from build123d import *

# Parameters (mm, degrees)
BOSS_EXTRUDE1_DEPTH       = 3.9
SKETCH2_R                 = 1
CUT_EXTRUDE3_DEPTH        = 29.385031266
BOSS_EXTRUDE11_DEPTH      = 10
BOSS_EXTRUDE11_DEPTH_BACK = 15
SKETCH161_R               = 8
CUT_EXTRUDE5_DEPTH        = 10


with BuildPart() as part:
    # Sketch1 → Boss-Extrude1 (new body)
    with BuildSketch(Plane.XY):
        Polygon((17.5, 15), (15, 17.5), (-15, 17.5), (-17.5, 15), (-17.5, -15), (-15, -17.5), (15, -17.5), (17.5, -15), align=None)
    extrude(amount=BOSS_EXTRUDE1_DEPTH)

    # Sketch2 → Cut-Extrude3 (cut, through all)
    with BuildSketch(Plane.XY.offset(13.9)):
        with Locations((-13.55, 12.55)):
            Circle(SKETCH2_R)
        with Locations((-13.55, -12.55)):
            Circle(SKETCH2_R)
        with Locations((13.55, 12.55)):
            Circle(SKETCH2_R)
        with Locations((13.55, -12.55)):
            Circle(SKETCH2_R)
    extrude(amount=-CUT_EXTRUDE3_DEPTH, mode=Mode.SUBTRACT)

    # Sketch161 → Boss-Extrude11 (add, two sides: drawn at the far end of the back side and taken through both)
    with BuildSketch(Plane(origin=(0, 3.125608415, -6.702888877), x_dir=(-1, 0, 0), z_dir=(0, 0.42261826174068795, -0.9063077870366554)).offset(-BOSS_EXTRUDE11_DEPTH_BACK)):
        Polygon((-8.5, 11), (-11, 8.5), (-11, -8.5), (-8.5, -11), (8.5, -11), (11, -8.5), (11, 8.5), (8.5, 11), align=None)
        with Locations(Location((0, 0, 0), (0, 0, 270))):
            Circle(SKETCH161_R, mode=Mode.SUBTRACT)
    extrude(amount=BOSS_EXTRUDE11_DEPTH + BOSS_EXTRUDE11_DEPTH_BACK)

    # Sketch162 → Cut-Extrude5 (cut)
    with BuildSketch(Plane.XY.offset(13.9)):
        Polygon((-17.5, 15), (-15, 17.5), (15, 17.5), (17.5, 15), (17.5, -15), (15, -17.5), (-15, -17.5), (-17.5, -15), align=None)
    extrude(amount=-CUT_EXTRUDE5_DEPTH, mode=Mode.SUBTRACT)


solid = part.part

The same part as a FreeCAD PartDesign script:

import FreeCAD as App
import Part
import Sketcher
from FreeCAD import Vector


def add_polygon(sketch, points):
    """Adds a closed chain of lines whose ends are joined by coincident constraints."""
    first, n = sketch.GeometryCount, len(points)
    for a, b in zip(points, points[1:] + points[:1]):
        sketch.addGeometry(Part.LineSegment(App.Vector(*a, 0), App.Vector(*b, 0)), False)
    for i in range(n):
        sketch.addConstraint(Sketcher.Constraint("Coincident", first + i, 2, first + (i + 1) % n, 1))

doc = App.newDocument("Part")
body = doc.addObject("PartDesign::Body", "Body")

# Sketch on XY plane
sketch1 = body.newObject("Sketcher::SketchObject", "Sketch")
sketch1.AttachmentSupport = (doc.getObject("XY_Plane"), [""])
sketch1.MapMode = "FlatFace"
add_polygon(sketch1, [(17.5, 15), (15, 17.5), (-15, 17.5), (-17.5, 15), (-17.5, -15), (-15, -17.5), (15, -17.5), (17.5, -15)])  # lines 0-7
sketch1.addConstraint([
    Sketcher.Constraint("Horizontal", 1),
    Sketcher.Constraint("Vertical", 3),
    Sketcher.Constraint("Horizontal", 5),
    Sketcher.Constraint("Vertical", 7),
    Sketcher.Constraint("Symmetric", 0, 2, 4, 2, -1, 1),
    Sketcher.Constraint("Symmetric", 2, 2, 6, 2, -1, 1),
    Sketcher.Constraint("Perpendicular", 0, 2),
    Sketcher.Constraint("Perpendicular", 2, 4),
    Sketcher.Constraint("Perpendicular", 4, 6),
    Sketcher.Constraint("Horizontal", 3, 2, 6, 2),
    Sketcher.Constraint("Vertical", 1, 2, 4, 2),
    Sketcher.Constraint("Equal", 5, 3),
    Sketcher.Constraint("DistanceX", 1, 2, 1, 1, 30.0),
    Sketcher.Constraint("DistanceY", 4, 2, 1, 2, 35.0),
])
pad1 = body.newObject("PartDesign::Pad", "Pad")
pad1.Profile = sketch1
pad1.Length = 3.9

# Sketch on XY plane
sketch2 = body.newObject("Sketcher::SketchObject", "Sketch001")
sketch2.AttachmentSupport = (doc.getObject("XY_Plane"), [""])
sketch2.MapMode = "FlatFace"
sketch2.AttachmentOffset = App.Placement(Vector(0, 0, 13.9), App.Rotation())
sketch2.addGeometry([
    Part.Circle(Vector(-13.55, 12.55, 0), Vector(0, 0, 1), 1),
    Part.Circle(Vector(-13.55, -12.55, 0), Vector(0, 0, 1), 1),
    Part.Circle(Vector(13.55, 12.55, 0), Vector(0, 0, 1), 1),
    Part.Circle(Vector(13.55, -12.55, 0), Vector(0, 0, 1), 1),
], False)
sketch2.addConstraint([
    Sketcher.Constraint("Equal", 0, 1),
    Sketcher.Constraint("Equal", 1, 2),
    Sketcher.Constraint("Equal", 2, 3),
    Sketcher.Constraint("Symmetric", 1, 3, 2, 3, -1, 1),
    Sketcher.Constraint("Symmetric", 0, 3, 3, 3, -1, 1),
    Sketcher.Constraint("Symmetric", 0, 3, 2, 3, -2),
    Sketcher.Constraint("Diameter", 0, 2.0),
    Sketcher.Constraint("DistanceY", 1, 3, 0, 3, 25.1),
    Sketcher.Constraint("DistanceX", 0, 3, 2, 3, 27.1),
])
pocket1 = body.newObject("PartDesign::Pocket", "Pocket")
pocket1.Profile = sketch2
pocket1.Type = "ThroughAll"

# Sketch on an angled plane
sketch3 = body.newObject("Sketcher::SketchObject", "Sketch002")
sketch3.Placement = App.Placement(Vector(0, 3.125608, -6.702889), App.Rotation(Vector(-1, 0, 0), Vector(0, 0.906307787, 0.422618262), Vector(0, 0.422618262, -0.906307787), "ZXY"))
add_polygon(sketch3, [(-8.5, 11), (-11, 8.5), (-11, -8.5), (-8.5, -11), (8.5, -11), (11, -8.5), (11, 8.5), (8.5, 11)])  # lines 0-7
sketch3.addGeometry(Part.Circle(Vector(0, 0, 0), Vector(0, 0, 1), 8), False)  # 8
sketch3.addConstraint([
    Sketcher.Constraint("Vertical", 1),
    Sketcher.Constraint("Horizontal", 3),
    Sketcher.Constraint("Vertical", 5),
    Sketcher.Constraint("Horizontal", 7),
    Sketcher.Constraint("Coincident", 8, 3, -1, 1),
    Sketcher.Constraint("Symmetric", 0, 2, 4, 2, -1, 1),
    Sketcher.Constraint("Symmetric", 2, 2, 6, 2, -1, 1),
    Sketcher.Constraint("Perpendicular", 0, 2),
    Sketcher.Constraint("Perpendicular", 2, 4),
    Sketcher.Constraint("Perpendicular", 4, 6),
    Sketcher.Constraint("Horizontal", 1, 2, 4, 2),
    Sketcher.Constraint("Vertical", 3, 2, 6, 2),
    Sketcher.Constraint("Equal", 7, 1),
    Sketcher.Constraint("Diameter", 8, 16.0),
    Sketcher.Constraint("DistanceX", 3, 1, 3, 2, 17.0),
    Sketcher.Constraint("DistanceX", 0, 2, -1, 1, 11.0),
])
pad2 = body.newObject("PartDesign::Pad", "Pad001")
pad2.Profile = sketch3
pad2.Type = "TwoLengths"
pad2.Length = 10
pad2.Length2 = 15

# Sketch on XY plane
sketch4 = body.newObject("Sketcher::SketchObject", "Sketch003")
sketch4.AttachmentSupport = (doc.getObject("XY_Plane"), [""])
sketch4.MapMode = "FlatFace"
sketch4.AttachmentOffset = App.Placement(Vector(0, 0, 13.9), App.Rotation())
add_polygon(sketch4, [(-15, 17.5), (-17.5, 15), (-17.5, -15), (-15, -17.5), (15, -17.5), (17.5, -15), (17.5, 15), (15, 17.5)])  # lines 0-7
sketch4.addConstraint([
    Sketcher.Constraint("Vertical", 1),
    Sketcher.Constraint("Horizontal", 3),
    Sketcher.Constraint("Vertical", 5),
    Sketcher.Constraint("Horizontal", 7),
    Sketcher.Constraint("Symmetric", 0, 2, 4, 2, -1, 1),
    Sketcher.Constraint("Symmetric", 2, 2, 6, 2, -1, 1),
    Sketcher.Constraint("Perpendicular", 0, 2),
    Sketcher.Constraint("Perpendicular", 2, 4),
    Sketcher.Constraint("Perpendicular", 4, 6),
    Sketcher.Constraint("Horizontal", 1, 2, 4, 2),
    Sketcher.Constraint("Vertical", 3, 2, 6, 2),
    Sketcher.Constraint("Equal", 7, 1),
    Sketcher.Constraint("DistanceX", 3, 1, 3, 2, 30.0),
    Sketcher.Constraint("DistanceX", 1, 2, 4, 2, 35.0),
])
pocket2 = body.newObject("PartDesign::Pocket", "Pocket001")
pocket2.Profile = sketch4
pocket2.Length = 10

doc.recompute()
